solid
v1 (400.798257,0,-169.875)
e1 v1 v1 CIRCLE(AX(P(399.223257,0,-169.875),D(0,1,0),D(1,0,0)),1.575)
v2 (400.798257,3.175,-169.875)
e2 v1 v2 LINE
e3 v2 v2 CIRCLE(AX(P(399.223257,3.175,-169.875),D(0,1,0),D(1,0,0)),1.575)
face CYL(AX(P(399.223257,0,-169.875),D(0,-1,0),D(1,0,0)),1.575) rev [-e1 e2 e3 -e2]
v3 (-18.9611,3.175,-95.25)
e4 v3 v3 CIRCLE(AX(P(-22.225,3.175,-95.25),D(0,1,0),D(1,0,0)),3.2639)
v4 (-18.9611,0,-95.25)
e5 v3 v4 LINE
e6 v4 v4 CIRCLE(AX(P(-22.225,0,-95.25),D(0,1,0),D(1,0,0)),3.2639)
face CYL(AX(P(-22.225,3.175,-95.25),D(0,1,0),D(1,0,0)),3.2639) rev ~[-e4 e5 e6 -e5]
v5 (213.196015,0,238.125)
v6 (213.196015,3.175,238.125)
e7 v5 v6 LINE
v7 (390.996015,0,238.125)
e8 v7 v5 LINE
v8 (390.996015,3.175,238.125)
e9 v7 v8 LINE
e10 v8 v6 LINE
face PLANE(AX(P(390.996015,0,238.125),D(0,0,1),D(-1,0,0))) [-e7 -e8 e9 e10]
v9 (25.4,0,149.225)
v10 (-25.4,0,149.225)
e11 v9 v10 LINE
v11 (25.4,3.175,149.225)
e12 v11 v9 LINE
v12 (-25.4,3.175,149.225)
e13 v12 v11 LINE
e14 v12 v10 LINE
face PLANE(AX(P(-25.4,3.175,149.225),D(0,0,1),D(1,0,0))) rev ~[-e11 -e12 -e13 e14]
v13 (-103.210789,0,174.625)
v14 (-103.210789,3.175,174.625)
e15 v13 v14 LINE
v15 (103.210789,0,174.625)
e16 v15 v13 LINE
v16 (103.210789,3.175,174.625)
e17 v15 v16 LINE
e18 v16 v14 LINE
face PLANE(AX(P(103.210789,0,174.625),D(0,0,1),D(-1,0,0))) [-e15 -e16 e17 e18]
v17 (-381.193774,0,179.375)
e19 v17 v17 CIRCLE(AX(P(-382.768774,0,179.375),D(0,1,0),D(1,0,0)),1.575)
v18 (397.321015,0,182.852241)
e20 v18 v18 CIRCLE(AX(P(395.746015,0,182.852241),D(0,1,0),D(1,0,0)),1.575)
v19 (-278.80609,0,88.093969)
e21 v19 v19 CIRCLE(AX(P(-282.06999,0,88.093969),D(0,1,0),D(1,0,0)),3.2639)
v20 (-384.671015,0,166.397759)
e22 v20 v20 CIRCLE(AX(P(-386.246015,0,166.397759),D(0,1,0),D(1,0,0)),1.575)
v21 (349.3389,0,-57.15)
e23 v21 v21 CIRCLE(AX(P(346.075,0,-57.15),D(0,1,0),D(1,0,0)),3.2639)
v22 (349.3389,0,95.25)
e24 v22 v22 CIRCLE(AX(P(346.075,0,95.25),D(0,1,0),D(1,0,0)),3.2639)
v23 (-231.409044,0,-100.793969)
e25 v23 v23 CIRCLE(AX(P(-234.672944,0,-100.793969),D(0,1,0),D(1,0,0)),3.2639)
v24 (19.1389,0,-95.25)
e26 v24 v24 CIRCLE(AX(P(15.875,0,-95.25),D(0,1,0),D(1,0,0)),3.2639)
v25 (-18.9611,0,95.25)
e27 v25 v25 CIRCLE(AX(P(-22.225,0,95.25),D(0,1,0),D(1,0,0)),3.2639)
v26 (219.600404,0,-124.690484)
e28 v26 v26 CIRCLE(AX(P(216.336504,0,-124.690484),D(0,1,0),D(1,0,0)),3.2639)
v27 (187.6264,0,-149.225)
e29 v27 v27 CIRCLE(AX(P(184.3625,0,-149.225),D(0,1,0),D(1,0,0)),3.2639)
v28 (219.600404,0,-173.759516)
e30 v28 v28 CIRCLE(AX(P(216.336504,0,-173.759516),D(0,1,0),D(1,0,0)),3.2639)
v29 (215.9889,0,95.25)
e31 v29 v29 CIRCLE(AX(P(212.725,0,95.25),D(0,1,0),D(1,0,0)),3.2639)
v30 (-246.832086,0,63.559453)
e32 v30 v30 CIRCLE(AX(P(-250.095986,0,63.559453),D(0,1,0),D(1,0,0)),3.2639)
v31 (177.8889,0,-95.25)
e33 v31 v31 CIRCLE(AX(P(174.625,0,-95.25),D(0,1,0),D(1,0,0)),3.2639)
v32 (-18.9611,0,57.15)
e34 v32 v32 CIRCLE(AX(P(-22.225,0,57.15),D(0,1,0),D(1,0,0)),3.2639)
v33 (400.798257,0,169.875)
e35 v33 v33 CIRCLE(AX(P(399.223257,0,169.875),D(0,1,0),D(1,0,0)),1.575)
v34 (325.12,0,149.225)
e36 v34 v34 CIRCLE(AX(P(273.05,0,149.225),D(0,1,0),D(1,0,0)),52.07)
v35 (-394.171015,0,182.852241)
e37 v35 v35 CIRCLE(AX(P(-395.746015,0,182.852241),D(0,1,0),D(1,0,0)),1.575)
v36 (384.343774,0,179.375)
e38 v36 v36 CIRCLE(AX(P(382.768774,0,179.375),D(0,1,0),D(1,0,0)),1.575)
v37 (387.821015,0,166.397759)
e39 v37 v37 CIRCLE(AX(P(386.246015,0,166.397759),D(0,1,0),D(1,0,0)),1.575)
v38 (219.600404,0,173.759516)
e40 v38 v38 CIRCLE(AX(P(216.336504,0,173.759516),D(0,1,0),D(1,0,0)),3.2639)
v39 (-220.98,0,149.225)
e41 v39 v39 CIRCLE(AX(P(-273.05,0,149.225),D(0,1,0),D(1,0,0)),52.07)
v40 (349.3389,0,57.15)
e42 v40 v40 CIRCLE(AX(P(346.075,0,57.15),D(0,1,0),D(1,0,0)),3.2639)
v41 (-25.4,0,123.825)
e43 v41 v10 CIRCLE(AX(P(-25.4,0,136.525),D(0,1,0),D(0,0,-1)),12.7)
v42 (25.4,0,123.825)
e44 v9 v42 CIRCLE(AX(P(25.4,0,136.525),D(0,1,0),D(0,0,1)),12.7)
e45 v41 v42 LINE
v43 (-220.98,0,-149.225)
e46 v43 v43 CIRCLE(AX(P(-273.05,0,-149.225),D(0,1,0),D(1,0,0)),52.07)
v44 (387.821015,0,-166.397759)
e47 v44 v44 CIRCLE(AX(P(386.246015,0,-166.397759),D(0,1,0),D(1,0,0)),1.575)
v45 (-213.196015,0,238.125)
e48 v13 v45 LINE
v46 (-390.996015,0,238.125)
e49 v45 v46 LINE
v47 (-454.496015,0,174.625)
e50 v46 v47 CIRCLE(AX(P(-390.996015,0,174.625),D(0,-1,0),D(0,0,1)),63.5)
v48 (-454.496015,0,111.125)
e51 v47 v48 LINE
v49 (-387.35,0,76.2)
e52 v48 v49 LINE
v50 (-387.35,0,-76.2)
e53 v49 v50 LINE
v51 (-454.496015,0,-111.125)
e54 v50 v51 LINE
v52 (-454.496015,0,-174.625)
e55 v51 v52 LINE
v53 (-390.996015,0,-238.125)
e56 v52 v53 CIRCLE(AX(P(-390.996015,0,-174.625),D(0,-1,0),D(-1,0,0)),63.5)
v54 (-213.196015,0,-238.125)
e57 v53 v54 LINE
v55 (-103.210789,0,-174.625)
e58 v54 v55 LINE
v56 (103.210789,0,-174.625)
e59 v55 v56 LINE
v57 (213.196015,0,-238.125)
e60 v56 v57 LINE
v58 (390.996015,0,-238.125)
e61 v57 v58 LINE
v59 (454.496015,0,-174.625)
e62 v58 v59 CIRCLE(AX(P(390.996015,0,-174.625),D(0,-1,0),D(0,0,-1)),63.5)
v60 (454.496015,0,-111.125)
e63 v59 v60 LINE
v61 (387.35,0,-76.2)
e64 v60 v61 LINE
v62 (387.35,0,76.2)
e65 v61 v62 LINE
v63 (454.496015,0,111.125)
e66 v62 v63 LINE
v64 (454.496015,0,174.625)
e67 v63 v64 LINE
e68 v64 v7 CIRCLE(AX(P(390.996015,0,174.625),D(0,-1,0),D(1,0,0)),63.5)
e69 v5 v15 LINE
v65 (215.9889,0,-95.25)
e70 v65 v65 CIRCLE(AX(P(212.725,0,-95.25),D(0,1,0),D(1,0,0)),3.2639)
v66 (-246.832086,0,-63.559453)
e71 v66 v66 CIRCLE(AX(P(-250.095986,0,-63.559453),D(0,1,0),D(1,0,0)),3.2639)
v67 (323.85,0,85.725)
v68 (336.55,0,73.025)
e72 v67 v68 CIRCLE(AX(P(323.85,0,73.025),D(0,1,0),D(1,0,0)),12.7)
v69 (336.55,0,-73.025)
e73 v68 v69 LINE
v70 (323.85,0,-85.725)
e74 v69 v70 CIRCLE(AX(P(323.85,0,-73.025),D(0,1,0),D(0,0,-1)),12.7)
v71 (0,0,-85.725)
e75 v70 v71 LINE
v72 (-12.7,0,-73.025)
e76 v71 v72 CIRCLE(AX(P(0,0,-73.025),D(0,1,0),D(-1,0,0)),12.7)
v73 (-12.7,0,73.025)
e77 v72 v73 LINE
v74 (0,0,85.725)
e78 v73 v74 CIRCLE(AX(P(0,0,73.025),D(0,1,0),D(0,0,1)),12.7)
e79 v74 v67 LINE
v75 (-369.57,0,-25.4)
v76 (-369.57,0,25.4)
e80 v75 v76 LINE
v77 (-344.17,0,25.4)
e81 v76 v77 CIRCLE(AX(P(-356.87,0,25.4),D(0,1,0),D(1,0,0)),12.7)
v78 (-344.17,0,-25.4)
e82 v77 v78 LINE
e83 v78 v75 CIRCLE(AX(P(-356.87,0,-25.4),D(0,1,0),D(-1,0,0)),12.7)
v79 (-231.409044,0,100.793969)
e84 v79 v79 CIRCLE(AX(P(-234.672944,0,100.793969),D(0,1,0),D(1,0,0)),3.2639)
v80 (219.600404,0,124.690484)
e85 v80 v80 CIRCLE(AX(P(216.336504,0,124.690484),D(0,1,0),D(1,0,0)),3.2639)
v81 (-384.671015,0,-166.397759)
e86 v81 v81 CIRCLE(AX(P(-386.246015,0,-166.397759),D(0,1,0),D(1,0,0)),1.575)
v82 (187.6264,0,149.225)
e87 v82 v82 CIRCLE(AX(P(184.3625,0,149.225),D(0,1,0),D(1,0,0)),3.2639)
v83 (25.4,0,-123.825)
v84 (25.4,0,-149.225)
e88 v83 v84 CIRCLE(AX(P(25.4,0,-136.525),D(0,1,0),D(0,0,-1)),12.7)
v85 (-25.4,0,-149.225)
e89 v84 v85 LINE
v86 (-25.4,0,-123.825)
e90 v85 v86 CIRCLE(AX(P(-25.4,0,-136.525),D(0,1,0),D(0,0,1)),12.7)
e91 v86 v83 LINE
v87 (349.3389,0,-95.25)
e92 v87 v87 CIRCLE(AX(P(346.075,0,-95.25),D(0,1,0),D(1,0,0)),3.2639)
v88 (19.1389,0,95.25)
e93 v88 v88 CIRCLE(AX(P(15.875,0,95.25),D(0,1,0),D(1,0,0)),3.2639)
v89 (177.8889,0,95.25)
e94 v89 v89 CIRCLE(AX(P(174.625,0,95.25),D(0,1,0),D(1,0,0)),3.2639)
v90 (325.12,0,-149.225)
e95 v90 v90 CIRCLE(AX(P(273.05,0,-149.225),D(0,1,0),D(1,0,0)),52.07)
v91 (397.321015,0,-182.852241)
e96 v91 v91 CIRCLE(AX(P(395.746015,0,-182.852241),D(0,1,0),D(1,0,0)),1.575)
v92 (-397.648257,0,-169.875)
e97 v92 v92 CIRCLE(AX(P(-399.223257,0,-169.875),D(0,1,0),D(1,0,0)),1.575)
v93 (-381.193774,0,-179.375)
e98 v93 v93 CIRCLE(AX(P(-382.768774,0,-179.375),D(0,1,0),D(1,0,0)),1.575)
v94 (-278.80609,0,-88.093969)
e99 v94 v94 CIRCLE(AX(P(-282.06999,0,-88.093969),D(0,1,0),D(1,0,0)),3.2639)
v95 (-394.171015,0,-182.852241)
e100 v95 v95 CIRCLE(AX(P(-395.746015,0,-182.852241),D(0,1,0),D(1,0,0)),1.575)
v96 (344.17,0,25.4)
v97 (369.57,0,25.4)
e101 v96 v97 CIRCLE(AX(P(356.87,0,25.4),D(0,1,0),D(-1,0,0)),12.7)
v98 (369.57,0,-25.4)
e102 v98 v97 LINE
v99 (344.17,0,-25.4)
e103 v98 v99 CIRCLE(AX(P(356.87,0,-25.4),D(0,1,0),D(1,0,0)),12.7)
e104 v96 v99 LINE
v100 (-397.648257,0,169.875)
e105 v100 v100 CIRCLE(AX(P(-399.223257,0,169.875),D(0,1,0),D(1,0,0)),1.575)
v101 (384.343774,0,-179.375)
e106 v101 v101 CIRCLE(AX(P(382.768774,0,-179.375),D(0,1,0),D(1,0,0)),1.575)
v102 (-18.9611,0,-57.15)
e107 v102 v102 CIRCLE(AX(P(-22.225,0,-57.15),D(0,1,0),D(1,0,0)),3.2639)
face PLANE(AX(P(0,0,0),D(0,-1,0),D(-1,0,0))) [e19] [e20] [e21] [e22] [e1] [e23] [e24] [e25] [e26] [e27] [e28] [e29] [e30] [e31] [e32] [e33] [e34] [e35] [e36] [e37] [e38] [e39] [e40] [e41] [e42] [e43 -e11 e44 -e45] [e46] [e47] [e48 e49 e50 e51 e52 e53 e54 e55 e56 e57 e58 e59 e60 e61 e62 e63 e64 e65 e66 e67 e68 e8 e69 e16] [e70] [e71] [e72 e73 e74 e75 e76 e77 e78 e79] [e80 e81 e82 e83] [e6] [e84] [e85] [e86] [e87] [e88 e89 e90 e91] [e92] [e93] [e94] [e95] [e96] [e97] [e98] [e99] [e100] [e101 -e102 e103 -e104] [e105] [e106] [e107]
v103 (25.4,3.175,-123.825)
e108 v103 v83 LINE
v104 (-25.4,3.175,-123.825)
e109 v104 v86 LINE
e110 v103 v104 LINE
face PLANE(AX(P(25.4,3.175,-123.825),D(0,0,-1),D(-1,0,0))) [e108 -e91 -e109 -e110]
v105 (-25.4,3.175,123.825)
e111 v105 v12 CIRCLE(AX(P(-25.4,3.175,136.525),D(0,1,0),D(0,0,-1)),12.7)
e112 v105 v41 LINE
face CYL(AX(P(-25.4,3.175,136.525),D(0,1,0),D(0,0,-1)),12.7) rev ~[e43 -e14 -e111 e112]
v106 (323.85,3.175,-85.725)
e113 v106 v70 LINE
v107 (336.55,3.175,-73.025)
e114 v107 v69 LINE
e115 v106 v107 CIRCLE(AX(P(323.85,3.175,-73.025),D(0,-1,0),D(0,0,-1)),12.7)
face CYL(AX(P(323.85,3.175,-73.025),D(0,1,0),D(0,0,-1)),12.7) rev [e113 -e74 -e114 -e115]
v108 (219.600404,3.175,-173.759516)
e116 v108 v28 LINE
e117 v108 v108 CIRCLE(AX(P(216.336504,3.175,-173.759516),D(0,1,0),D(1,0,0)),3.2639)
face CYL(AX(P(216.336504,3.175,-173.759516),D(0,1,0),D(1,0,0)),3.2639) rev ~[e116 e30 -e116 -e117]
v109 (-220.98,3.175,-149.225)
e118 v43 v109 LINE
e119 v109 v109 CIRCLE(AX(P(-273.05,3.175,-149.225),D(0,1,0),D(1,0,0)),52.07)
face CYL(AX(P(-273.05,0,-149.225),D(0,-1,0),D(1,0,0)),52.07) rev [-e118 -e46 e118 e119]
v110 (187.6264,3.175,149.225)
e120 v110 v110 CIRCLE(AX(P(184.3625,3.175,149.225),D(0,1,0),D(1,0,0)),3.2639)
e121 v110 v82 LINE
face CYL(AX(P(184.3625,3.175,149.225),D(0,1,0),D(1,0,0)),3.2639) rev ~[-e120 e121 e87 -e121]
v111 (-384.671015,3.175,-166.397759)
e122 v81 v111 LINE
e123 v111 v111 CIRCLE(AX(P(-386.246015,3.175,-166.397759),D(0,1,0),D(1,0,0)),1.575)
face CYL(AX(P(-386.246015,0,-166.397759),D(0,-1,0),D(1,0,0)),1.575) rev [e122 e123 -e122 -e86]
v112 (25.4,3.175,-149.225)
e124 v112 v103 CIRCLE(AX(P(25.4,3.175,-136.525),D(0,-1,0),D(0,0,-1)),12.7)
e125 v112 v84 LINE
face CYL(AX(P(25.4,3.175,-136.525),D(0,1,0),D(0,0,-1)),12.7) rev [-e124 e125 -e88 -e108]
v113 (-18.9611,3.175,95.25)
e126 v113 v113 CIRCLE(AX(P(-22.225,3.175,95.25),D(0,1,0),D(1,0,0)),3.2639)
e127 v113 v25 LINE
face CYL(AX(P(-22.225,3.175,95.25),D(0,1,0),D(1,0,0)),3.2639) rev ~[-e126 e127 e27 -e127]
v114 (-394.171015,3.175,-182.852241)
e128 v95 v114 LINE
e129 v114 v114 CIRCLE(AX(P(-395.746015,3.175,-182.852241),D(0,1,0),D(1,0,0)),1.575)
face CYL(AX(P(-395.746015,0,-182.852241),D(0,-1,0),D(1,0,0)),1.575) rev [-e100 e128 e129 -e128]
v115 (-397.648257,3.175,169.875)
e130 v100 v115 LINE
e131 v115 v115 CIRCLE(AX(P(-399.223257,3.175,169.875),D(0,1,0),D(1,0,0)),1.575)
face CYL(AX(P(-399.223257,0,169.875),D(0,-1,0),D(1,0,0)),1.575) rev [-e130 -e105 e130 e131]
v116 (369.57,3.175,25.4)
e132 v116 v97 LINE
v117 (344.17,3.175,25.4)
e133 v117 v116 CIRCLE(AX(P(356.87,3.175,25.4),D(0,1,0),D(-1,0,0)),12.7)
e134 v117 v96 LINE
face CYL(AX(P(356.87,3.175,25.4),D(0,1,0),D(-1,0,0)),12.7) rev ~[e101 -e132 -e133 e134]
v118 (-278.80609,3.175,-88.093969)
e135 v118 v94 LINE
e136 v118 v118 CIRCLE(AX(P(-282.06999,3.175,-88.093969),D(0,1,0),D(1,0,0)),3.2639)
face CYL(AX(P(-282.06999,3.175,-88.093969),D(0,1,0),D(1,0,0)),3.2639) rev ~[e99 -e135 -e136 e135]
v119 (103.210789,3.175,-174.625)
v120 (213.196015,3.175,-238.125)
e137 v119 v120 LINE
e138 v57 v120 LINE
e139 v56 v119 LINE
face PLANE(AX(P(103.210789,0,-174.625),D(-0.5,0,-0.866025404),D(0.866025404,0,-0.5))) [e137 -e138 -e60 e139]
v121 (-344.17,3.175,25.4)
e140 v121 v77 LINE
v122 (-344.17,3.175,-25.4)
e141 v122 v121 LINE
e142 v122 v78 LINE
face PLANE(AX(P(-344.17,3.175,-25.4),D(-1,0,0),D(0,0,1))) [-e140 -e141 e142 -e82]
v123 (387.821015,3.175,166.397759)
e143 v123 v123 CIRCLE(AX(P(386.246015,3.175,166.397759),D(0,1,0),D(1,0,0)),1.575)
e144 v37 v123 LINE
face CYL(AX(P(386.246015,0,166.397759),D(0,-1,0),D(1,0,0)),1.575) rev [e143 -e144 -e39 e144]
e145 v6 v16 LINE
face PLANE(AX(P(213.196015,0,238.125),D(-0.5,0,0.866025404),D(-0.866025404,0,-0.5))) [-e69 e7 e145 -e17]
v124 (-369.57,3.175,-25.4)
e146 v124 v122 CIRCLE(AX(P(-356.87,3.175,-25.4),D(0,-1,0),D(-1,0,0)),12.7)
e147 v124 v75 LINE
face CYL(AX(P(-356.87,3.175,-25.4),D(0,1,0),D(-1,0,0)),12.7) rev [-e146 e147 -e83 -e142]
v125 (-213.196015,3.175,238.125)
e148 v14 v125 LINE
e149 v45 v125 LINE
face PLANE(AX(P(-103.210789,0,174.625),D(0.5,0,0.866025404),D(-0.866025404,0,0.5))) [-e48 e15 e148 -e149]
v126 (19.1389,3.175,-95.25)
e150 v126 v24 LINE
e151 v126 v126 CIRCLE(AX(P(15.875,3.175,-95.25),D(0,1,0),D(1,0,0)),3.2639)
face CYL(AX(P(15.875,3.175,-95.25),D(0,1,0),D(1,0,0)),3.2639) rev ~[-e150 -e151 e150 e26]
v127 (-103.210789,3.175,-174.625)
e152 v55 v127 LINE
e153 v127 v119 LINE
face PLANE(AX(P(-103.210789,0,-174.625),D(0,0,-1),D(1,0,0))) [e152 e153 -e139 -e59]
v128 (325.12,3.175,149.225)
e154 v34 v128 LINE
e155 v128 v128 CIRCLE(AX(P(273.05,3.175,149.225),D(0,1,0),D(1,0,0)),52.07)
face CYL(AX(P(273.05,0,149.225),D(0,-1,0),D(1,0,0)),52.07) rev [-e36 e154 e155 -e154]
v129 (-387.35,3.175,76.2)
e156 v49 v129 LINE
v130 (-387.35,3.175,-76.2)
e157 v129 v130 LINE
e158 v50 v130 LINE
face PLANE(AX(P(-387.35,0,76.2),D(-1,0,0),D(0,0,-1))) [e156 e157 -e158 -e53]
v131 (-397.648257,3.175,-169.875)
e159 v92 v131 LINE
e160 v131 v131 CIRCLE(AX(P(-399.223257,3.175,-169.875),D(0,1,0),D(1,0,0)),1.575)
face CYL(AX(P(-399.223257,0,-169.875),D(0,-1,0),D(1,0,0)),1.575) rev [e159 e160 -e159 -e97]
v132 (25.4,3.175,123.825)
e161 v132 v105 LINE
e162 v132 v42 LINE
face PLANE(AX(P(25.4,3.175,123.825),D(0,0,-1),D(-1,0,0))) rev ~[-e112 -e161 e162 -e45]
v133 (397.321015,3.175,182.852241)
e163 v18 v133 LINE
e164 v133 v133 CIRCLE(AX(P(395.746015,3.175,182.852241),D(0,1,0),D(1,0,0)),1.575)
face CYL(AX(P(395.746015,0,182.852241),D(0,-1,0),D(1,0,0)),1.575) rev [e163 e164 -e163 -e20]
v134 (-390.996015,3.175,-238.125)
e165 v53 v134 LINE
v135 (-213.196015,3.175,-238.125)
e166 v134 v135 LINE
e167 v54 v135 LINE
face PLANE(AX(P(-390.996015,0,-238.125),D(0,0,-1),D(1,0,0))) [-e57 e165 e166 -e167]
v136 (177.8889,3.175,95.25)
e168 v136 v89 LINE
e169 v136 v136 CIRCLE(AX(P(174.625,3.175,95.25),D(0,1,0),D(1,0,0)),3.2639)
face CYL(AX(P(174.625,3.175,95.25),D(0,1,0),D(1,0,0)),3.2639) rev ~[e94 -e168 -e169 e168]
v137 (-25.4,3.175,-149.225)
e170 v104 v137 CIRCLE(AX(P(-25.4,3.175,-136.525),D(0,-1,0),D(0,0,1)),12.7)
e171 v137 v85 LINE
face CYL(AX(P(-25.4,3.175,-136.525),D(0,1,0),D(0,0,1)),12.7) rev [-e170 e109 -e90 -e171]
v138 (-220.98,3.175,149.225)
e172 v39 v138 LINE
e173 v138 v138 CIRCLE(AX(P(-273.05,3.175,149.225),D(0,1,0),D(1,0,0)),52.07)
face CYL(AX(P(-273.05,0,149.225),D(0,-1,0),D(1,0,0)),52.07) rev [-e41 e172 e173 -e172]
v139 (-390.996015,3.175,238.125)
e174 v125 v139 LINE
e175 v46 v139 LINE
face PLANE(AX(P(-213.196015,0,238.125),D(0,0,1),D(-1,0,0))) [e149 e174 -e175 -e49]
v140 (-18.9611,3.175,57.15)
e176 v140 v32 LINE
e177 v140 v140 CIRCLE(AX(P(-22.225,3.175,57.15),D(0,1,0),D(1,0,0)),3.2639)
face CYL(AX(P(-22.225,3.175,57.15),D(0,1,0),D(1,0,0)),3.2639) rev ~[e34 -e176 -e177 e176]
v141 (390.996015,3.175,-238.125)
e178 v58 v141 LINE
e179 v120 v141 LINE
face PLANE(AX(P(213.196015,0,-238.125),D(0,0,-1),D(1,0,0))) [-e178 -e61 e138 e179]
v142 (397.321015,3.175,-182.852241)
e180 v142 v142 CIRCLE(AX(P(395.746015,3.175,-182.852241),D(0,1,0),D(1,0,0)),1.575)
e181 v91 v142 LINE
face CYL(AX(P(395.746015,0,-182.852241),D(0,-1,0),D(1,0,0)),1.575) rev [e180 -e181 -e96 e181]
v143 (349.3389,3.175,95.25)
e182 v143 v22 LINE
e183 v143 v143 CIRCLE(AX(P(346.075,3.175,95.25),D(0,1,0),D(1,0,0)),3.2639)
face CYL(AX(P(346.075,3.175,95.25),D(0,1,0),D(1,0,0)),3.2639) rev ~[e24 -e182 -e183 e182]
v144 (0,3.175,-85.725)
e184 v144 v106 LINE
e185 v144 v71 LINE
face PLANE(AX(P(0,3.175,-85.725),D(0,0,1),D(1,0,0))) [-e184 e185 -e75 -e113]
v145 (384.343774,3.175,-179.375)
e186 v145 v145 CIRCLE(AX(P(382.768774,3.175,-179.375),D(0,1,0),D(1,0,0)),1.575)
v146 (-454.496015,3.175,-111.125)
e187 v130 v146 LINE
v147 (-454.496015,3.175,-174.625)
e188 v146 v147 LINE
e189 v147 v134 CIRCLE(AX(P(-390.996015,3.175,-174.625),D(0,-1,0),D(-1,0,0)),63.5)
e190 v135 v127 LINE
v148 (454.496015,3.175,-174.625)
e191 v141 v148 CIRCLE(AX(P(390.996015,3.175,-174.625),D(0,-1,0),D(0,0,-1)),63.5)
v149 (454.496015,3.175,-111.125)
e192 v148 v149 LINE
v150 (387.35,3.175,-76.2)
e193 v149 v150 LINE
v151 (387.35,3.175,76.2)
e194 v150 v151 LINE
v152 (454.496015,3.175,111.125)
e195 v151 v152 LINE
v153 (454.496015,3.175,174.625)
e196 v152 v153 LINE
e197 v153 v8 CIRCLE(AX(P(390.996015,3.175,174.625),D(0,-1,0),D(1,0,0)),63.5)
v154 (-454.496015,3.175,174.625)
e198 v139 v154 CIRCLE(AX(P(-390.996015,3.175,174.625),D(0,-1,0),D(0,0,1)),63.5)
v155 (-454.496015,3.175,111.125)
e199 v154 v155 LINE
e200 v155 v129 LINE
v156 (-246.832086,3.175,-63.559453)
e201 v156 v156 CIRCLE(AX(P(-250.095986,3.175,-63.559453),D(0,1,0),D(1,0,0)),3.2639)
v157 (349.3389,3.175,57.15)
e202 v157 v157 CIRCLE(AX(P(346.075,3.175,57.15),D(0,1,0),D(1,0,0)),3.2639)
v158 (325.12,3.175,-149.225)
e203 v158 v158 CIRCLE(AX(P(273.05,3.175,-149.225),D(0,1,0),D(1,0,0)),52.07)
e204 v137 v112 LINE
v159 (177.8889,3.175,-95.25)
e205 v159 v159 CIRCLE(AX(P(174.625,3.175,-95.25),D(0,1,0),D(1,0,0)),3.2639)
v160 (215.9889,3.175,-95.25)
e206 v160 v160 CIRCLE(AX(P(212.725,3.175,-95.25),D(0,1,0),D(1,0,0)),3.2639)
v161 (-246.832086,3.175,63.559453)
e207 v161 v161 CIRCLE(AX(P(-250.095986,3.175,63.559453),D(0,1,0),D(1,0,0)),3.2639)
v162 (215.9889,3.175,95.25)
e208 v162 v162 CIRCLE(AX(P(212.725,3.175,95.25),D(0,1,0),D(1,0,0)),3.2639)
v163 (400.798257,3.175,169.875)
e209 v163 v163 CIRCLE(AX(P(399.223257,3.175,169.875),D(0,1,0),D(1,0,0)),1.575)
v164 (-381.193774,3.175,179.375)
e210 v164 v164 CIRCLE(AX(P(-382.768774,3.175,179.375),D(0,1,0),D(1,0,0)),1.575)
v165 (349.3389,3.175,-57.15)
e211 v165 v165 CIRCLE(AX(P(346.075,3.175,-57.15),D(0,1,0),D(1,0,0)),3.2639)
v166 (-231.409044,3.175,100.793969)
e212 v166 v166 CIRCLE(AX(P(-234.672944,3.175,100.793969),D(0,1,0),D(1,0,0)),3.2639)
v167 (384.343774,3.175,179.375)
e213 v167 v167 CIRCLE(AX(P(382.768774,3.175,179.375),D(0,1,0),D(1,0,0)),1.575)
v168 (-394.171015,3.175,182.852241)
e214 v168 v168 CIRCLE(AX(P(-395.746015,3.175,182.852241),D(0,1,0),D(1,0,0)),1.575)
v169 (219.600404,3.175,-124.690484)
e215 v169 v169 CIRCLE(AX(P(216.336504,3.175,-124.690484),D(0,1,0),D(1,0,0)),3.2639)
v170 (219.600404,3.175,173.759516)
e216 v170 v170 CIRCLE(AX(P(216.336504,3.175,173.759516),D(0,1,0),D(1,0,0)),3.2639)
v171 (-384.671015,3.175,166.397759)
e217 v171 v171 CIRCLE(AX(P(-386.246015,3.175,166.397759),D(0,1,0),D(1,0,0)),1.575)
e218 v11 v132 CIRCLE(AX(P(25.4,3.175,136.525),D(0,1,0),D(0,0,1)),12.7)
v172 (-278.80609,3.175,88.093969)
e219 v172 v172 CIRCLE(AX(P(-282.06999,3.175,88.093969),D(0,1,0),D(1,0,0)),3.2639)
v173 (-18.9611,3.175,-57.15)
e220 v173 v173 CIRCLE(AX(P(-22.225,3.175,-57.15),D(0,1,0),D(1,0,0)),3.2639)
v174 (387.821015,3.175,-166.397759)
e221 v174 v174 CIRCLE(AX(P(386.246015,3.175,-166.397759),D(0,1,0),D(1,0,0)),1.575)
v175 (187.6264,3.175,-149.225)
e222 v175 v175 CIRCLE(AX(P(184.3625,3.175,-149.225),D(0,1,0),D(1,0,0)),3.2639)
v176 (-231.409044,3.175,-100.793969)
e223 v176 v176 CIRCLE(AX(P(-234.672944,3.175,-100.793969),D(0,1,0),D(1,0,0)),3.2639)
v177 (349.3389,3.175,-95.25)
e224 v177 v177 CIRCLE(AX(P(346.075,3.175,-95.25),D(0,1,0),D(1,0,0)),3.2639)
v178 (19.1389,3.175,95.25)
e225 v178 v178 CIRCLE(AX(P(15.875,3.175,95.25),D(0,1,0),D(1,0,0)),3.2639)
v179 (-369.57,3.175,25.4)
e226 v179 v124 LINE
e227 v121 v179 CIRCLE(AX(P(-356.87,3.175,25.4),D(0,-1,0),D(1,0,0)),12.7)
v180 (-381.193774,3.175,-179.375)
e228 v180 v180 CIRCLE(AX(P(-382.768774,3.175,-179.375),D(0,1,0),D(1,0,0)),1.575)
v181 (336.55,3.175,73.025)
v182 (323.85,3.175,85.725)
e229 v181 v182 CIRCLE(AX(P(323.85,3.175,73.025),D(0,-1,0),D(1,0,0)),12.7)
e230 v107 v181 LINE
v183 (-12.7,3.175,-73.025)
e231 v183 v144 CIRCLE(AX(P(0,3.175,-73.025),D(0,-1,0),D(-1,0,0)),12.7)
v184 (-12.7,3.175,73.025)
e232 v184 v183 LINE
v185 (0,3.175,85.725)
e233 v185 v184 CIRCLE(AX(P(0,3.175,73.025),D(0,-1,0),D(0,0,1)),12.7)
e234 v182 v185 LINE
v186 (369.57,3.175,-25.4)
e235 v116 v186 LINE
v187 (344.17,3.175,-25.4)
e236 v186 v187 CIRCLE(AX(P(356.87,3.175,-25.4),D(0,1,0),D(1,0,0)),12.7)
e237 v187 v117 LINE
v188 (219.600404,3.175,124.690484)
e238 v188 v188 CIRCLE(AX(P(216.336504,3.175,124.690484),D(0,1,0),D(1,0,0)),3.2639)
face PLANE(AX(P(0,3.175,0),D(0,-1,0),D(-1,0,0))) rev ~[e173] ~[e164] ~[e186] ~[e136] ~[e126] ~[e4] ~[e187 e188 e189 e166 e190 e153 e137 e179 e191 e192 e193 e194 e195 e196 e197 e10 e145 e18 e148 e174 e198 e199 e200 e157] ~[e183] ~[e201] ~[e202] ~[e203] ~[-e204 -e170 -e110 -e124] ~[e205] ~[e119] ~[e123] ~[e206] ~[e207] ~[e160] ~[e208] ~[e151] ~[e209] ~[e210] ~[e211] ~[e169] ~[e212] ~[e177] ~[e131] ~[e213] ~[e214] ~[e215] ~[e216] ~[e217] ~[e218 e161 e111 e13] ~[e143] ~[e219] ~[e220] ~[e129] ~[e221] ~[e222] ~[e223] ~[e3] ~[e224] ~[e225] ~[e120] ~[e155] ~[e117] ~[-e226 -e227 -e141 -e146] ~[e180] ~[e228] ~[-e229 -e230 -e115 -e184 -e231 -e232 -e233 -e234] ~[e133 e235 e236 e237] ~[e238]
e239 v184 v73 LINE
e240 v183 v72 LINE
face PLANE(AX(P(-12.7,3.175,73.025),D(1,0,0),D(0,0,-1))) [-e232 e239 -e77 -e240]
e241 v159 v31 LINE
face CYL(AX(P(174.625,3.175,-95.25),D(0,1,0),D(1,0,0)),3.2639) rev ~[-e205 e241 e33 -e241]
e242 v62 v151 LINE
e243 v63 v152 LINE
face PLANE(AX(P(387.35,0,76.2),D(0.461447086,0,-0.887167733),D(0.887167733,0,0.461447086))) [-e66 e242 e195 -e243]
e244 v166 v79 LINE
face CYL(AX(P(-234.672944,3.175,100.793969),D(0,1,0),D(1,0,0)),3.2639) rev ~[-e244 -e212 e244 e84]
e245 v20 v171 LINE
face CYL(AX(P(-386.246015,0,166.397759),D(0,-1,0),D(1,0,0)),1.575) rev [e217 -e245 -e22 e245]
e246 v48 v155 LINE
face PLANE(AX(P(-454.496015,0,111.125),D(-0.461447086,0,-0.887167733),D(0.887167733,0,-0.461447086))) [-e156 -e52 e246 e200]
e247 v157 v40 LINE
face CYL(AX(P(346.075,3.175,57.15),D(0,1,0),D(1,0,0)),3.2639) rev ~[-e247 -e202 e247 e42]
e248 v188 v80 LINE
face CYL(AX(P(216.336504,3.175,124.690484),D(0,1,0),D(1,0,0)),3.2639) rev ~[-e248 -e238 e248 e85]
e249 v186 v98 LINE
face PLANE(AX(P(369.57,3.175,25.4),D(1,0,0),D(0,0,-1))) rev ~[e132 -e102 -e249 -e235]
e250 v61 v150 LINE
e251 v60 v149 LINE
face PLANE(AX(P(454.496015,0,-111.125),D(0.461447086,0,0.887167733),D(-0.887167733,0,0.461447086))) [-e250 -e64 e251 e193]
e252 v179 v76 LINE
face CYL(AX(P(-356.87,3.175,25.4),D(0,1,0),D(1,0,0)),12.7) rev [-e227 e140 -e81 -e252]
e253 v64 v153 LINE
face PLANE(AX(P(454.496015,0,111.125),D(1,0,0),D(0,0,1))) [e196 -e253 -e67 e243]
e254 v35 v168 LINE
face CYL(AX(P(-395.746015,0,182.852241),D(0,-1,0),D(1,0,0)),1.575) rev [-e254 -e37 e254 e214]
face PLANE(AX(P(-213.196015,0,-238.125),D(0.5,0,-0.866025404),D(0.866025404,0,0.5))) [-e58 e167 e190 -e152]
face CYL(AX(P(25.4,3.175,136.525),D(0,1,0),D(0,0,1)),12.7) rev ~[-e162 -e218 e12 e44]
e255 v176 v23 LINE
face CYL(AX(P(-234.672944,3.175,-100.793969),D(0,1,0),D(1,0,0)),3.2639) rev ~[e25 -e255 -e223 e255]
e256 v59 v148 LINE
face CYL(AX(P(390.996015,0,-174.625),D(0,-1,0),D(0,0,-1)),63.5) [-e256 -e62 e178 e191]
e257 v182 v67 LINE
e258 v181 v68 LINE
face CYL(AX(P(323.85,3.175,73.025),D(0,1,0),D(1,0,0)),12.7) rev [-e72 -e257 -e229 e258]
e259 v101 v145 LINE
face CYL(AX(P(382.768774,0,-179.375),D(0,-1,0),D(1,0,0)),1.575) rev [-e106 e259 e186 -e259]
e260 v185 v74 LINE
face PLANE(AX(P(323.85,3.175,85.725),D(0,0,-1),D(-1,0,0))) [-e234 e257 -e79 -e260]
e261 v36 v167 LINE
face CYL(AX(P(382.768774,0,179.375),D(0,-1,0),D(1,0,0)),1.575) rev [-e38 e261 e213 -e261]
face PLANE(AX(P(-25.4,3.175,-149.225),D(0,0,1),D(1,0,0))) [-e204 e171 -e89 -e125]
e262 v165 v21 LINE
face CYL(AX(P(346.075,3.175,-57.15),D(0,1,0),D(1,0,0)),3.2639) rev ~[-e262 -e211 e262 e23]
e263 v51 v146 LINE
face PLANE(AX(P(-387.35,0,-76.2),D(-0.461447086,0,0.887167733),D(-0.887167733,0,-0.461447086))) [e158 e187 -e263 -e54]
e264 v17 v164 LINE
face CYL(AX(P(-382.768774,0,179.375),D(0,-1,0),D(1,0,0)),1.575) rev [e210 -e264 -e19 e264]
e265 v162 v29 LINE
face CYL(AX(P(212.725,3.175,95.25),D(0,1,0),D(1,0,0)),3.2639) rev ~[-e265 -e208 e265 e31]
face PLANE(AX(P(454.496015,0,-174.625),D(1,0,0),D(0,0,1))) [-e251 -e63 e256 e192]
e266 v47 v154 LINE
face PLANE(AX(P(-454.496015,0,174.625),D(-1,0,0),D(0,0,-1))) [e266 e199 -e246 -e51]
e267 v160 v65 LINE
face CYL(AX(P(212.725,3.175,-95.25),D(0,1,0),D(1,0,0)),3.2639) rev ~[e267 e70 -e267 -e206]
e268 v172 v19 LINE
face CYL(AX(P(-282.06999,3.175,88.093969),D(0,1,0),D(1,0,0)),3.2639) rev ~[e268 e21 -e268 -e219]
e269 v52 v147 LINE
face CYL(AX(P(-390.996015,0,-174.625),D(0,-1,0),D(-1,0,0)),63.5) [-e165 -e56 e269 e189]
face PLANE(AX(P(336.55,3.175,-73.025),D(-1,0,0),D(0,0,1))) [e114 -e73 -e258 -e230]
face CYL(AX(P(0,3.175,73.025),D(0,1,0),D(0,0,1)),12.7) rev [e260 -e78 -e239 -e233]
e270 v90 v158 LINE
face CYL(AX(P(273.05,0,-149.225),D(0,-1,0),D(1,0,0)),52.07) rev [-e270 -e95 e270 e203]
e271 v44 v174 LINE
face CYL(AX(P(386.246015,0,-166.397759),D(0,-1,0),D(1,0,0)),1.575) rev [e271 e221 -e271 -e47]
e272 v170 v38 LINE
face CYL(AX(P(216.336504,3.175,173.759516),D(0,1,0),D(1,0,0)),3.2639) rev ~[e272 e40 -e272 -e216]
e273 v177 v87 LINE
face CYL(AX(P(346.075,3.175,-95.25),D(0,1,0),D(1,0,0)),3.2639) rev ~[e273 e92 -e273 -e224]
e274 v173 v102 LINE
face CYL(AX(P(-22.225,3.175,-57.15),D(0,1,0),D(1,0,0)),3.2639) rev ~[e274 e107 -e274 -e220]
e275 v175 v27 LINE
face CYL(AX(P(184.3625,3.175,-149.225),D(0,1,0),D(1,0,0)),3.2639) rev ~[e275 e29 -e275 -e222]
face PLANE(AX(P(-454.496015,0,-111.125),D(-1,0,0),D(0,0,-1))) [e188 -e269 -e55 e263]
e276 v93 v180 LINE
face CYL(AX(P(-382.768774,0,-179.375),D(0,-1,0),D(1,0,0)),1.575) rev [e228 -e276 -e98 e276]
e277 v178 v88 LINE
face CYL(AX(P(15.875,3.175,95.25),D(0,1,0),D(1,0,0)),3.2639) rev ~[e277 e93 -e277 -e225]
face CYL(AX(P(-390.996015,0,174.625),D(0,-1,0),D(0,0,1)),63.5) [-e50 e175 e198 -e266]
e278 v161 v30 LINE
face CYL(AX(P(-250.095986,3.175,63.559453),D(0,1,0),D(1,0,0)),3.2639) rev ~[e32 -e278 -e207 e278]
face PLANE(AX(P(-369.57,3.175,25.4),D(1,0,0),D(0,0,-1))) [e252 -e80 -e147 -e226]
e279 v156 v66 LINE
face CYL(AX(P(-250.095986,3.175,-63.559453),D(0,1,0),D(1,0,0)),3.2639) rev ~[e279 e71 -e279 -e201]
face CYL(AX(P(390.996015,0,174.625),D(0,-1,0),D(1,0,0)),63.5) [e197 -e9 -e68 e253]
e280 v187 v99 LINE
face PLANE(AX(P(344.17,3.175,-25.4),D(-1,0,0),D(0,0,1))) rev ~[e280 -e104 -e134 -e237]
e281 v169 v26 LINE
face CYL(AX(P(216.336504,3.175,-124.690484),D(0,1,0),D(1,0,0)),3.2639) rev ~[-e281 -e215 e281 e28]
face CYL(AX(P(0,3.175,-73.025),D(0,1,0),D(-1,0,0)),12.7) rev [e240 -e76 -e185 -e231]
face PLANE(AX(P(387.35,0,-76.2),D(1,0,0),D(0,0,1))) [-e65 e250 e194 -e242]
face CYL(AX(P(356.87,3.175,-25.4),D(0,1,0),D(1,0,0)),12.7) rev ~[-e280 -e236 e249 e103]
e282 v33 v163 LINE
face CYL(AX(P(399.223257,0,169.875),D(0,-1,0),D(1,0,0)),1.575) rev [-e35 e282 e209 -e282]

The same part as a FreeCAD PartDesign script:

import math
import FreeCAD as App
import Part
import Sketcher

V = App.Vector
Q = App.Units.Quantity

doc = App.newDocument("Part")
body = doc.addObject("PartDesign::Body", "Body")

sketch1 = body.newObject("Sketcher::SketchObject", "Sketch")
sketch1.AttachmentSupport = (doc.getObject("XZ_Plane"), [""])
sketch1.MapMode = "FlatFace"
sketch1.addGeometry([
    Part.LineSegment(V(387.4, 76.2, 0), V(387.4, -76.2, 0)),
    Part.LineSegment(V(387.4, -76.2, 0), V(454.5, -111.1, 0)),
    Part.LineSegment(V(454.5, -111.1, 0), V(454.5, -174.6, 0)),
    Part.ArcOfCircle(Part.Circle(V(391, -174.6, 0), V(0, 0, 1), 63.5), math.radians(-90), math.radians(0)),
    Part.LineSegment(V(391, -238.1, 0), V(213.2, -238.1, 0)),
    Part.LineSegment(V(213.2, -238.1, 0), V(103.2, -174.6, 0)),
    Part.LineSegment(V(103.2, -174.6, 0), V(-103.2, -174.6, 0)),
    Part.LineSegment(V(-103.2, -174.6, 0), V(-213.2, -238.1, 0)),
    Part.LineSegment(V(-213.2, -238.1, 0), V(-391, -238.1, 0)),
    Part.ArcOfCircle(Part.Circle(V(-391, -174.6, 0), V(0, 0, 1), 63.5), math.radians(180), math.radians(270)),
    Part.LineSegment(V(-454.5, -174.6, 0), V(-454.5, -111.1, 0)),
    Part.LineSegment(V(-454.5, -111.1, 0), V(-387.4, -76.2, 0)),
    Part.LineSegment(V(-387.4, -76.2, 0), V(-387.4, 76.2, 0)),
    Part.LineSegment(V(-387.4, 76.2, 0), V(-454.5, 111.1, 0)),
    Part.LineSegment(V(-454.5, 111.1, 0), V(-454.5, 174.6, 0)),
    Part.ArcOfCircle(Part.Circle(V(-391, 174.6, 0), V(0, 0, 1), 63.5), math.radians(90), math.radians(180)),
    Part.LineSegment(V(-391, 238.1, 0), V(-213.2, 238.1, 0)),
    Part.LineSegment(V(-213.2, 238.1, 0), V(-103.2, 174.6, 0)),
    Part.LineSegment(V(-103.2, 174.6, 0), V(103.2, 174.6, 0)),
    Part.LineSegment(V(103.2, 174.6, 0), V(213.2, 238.1, 0)),
    Part.LineSegment(V(213.2, 238.1, 0), V(391, 238.1, 0)),
    Part.ArcOfCircle(Part.Circle(V(391, 174.6, 0), V(0, 0, 1), 63.5), math.radians(0), math.radians(90)),
    Part.LineSegment(V(454.5, 174.6, 0), V(454.5, 111.1, 0)),
    Part.LineSegment(V(454.5, 111.1, 0), V(387.4, 76.2, 0)),
    Part.Circle(V(395.7, 182.9, 0), V(0, 0, 1), 1.6),
    Part.Circle(V(382.8, 179.4, 0), V(0, 0, 1), 1.6),
    Part.Circle(V(399.2, 169.9, 0), V(0, 0, 1), 1.6),
    Part.Circle(V(386.2, 166.4, 0), V(0, 0, 1), 1.6),
    Part.Circle(V(273.1, 149.2, 0), V(0, 0, 1), 52.1),
    Part.Circle(V(-395.7, 182.9, 0), V(0, 0, 1), 1.6),
    Part.Circle(V(-382.8, 179.4, 0), V(0, 0, 1), 1.6),
    Part.Circle(V(-399.2, 169.9, 0), V(0, 0, 1), 1.6),
    Part.Circle(V(-386.2, 166.4, 0), V(0, 0, 1), 1.6),
    Part.Circle(V(-273.1, 149.2, 0), V(0, 0, 1), 52.1),
    Part.Circle(V(273.1, -149.2, 0), V(0, 0, 1), 52.1),
    Part.Circle(V(386.2, -166.4, 0), V(0, 0, 1), 1.6),
    Part.Circle(V(399.2, -169.9, 0), V(0, 0, 1), 1.6),
    Part.Circle(V(382.8, -179.4, 0), V(0, 0, 1), 1.6),
    Part.Circle(V(395.7, -182.9, 0), V(0, 0, 1), 1.6),
    Part.Circle(V(-273.1, -149.2, 0), V(0, 0, 1), 52.1),
    Part.Circle(V(-386.2, -166.4, 0), V(0, 0, 1), 1.6),
    Part.Circle(V(-399.2, -169.9, 0), V(0, 0, 1), 1.6),
    Part.Circle(V(-382.8, -179.4, 0), V(0, 0, 1), 1.6),
    Part.Circle(V(-395.7, -182.9, 0), V(0, 0, 1), 1.6),
], False)
sketch1.addConstraint([
    Sketcher.Constraint("Coincident", 0, 2, 1, 1),
    Sketcher.Constraint("Coincident", 1, 2, 2, 1),
    Sketcher.Constraint("Tangent", 2, 2, 3, 2),
    Sketcher.Constraint("Tangent", 3, 1, 4, 1),
    Sketcher.Constraint("Coincident", 4, 2, 5, 1),
    Sketcher.Constraint("Coincident", 5, 2, 6, 1),
    Sketcher.Constraint("Coincident", 6, 2, 7, 1),
    Sketcher.Constraint("Coincident", 7, 2, 8, 1),
    Sketcher.Constraint("Tangent", 8, 2, 9, 2),
    Sketcher.Constraint("Tangent", 9, 1, 10, 1),
    Sketcher.Constraint("Coincident", 10, 2, 11, 1),
    Sketcher.Constraint("Coincident", 11, 2, 12, 1),
    Sketcher.Constraint("Coincident", 12, 2, 13, 1),
    Sketcher.Constraint("Coincident", 13, 2, 14, 1),
    Sketcher.Constraint("Tangent", 14, 2, 15, 2),
    Sketcher.Constraint("Tangent", 15, 1, 16, 1),
    Sketcher.Constraint("Coincident", 16, 2, 17, 1),
    Sketcher.Constraint("Coincident", 17, 2, 18, 1),
    Sketcher.Constraint("Coincident", 18, 2, 19, 1),
    Sketcher.Constraint("Coincident", 19, 2, 20, 1),
    Sketcher.Constraint("Tangent", 20, 2, 21, 2),
    Sketcher.Constraint("Tangent", 21, 1, 22, 1),
    Sketcher.Constraint("Coincident", 22, 2, 23, 1),
    Sketcher.Constraint("Coincident", 23, 2, 0, 1),
    Sketcher.Constraint("Vertical", 0),
    Sketcher.Constraint("Vertical", 2),
    Sketcher.Constraint("Horizontal", 4),
    Sketcher.Constraint("Horizontal", 6),
    Sketcher.Constraint("Horizontal", 8),
    Sketcher.Constraint("Vertical", 10),
    Sketcher.Constraint("Vertical", 12),
    Sketcher.Constraint("Vertical", 14),
    Sketcher.Constraint("Horizontal", 16),
    Sketcher.Constraint("Horizontal", 18),
    Sketcher.Constraint("Horizontal", 20),
    Sketcher.Constraint("Vertical", 22),
    Sketcher.Constraint("Equal", 3, 9),
    Sketcher.Constraint("Equal", 9, 15),
    Sketcher.Constraint("Equal", 15, 21),
    Sketcher.Constraint("Equal", 24, 25),
    Sketcher.Constraint("Equal", 25, 26),
    Sketcher.Constraint("Equal", 26, 27),
    Sketcher.Constraint("Equal", 27, 29),
    Sketcher.Constraint("Equal", 29, 30),
    Sketcher.Constraint("Equal", 30, 31),
    Sketcher.Constraint("Equal", 31, 32),
    Sketcher.Constraint("Equal", 28, 33),
    Sketcher.Constraint("Equal", 33, 34),
    Sketcher.Constraint("Equal", 32, 35),
    Sketcher.Constraint("Equal", 35, 36),
    Sketcher.Constraint("Equal", 36, 37),
    Sketcher.Constraint("Equal", 37, 38),
    Sketcher.Constraint("Equal", 34, 39),
    Sketcher.Constraint("Equal", 38, 40),
    Sketcher.Constraint("Equal", 40, 41),
    Sketcher.Constraint("Equal", 41, 42),
    Sketcher.Constraint("Equal", 42, 43),
    Sketcher.Constraint("Symmetric", 3, 3, 15, 3, -1, 1),
    Sketcher.Constraint("Symmetric", 9, 3, 21, 3, -1, 1),
    Sketcher.Constraint("Symmetric", 33, 3, 34, 3, -1, 1),
    Sketcher.Constraint("Symmetric", 32, 3, 35, 3, -1, 1),
    Sketcher.Constraint("Symmetric", 31, 3, 36, 3, -1, 1),
    Sketcher.Constraint("Symmetric", 30, 3, 37, 3, -1, 1),
    Sketcher.Constraint("Symmetric", 29, 3, 38, 3, -1, 1),
    Sketcher.Constraint("Symmetric", 28, 3, 39, 3, -1, 1),
    Sketcher.Constraint("Symmetric", 27, 3, 40, 3, -1, 1),
    Sketcher.Constraint("Symmetric", 26, 3, 41, 3, -1, 1),
    Sketcher.Constraint("Symmetric", 25, 3, 42, 3, -1, 1),
    Sketcher.Constraint("Symmetric", 24, 3, 43, 3, -1, 1),
    Sketcher.Constraint("Symmetric", 0, 2, 12, 2, -1, 1),
    Sketcher.Constraint("Symmetric", 5, 2, 17, 2, -1, 1),
    Sketcher.Constraint("Symmetric", 3, 3, 9, 3, -2),
    Sketcher.Constraint("Symmetric", 24, 3, 29, 3, -2),
    Sketcher.Constraint("Symmetric", 25, 3, 30, 3, -2),
    Sketcher.Constraint("Symmetric", 26, 3, 31, 3, -2),
    Sketcher.Constraint("Symmetric", 27, 3, 32, 3, -2),
    Sketcher.Constraint("Symmetric", 28, 3, 33, 3, -2),
    Sketcher.Constraint("Parallel", 1, 13),
    Sketcher.Constraint("Parallel", 5, 17),
    Sketcher.Constraint("Parallel", 7, 19),
    Sketcher.Constraint("Parallel", 11, 23),
    Sketcher.Constraint("Horizontal", 2, 2, 5, 2),
    Sketcher.Constraint("Horizontal", 1, 2, 10, 2),
    Sketcher.Constraint("Horizontal", 0, 2, 11, 2),
    Sketcher.Constraint("Horizontal", 13, 2, 22, 2),
    Sketcher.Constraint("Vertical", 7, 2, 16, 2),
    Sketcher.Constraint("Vertical", 6, 2, 17, 2),
    Sketcher.Constraint("Vertical", 5, 2, 18, 2),
    Sketcher.Constraint("Diameter", 28, Q("4.1 in")),
    Sketcher.Constraint("Radius", 3, Q("2.5 in")),
    Sketcher.Constraint("DistanceX", 4, 2, 4, 1, Q("7 in")),
    Sketcher.Constraint("DistanceY", 0, 2, 0, 1, Q("6 in")),
    Sketcher.Constraint("Distance", 5, Q("5 in")),
    Sketcher.Constraint("DistanceY", 2, 2, 2, 1, Q("2.5 in")),
    Sketcher.Constraint("DistanceY", 28, 3, 21, 3, Q("1 in")),
    Sketcher.Constraint("Diameter", 24, Q("3.15 mm")),
    Sketcher.Constraint("DistanceX", -1, 1, 28, 3, Q("10.75 in")),
    Sketcher.Constraint("DistanceX", -1, 1, 0, 2, Q("15.25 in")),
    Sketcher.Constraint("DistanceY", 9, 3, 15, 3, Q("13.75 in")),
    Sketcher.Constraint("DistanceY", -1, 1, 25, 3, Q("179.375 mm")),
    Sketcher.Constraint("DistanceY", -1, 1, 26, 3, Q("169.875 mm")),
    Sketcher.Constraint("DistanceX", 21, 3, 24, 3, Q("4.75 mm")),
    Sketcher.Constraint("DistanceX", 27, 3, 21, 3, Q("4.75 mm")),
    Sketcher.Constraint("DistanceX", 6, 2, 6, 1, Q("206.421578 mm")),
    Sketcher.Constraint("DistanceY", -1, 1, 24, 3, Q("182.852241 mm")),
    Sketcher.Constraint("DistanceY", -1, 1, 27, 3, Q("166.397759 mm")),
    Sketcher.Constraint("DistanceX", 25, 3, 21, 3, Q("8.227241 mm")),
    Sketcher.Constraint("DistanceX", 21, 3, 26, 3, Q("8.227241 mm")),
])
pad1 = body.newObject("PartDesign::Pad", "Pad")
pad1.Profile = sketch1
pad1.Length = Q("0.125 in")
pad1.Reversed = True

sketch2 = body.newObject("Sketcher::SketchObject", "Sketch001")
sketch2.AttachmentSupport = (doc.getObject("XZ_Plane"), [""])
sketch2.MapMode = "FlatFace"
sketch2.AttachmentOffset = App.Placement(V(0, 0, -0.125 * 25.4), App.Rotation())
sketch2.addGeometry([
    Part.Circle(V(346.1, -95.2, 0), V(0, 0, 1), 3.3),
    Part.Circle(V(346.1, -57.1, 0), V(0, 0, 1), 3.3),
    Part.Circle(V(212.7, -95.2, 0), V(0, 0, 1), 3.3),
    Part.Circle(V(174.6, -95.2, 0), V(0, 0, 1), 3.3),
    Part.Circle(V(15.9, -95.2, 0), V(0, 0, 1), 3.3),
    Part.Circle(V(-22.2, -95.2, 0), V(0, 0, 1), 3.3),
    Part.Circle(V(-22.2, -57.1, 0), V(0, 0, 1), 3.3),
    Part.Circle(V(346.1, 57.1, 0), V(0, 0, 1), 3.3),
    Part.Circle(V(346.1, 95.2, 0), V(0, 0, 1), 3.3),
    Part.Circle(V(212.7, 95.2, 0), V(0, 0, 1), 3.3),
    Part.Circle(V(174.6, 95.2, 0), V(0, 0, 1), 3.3),
    Part.Circle(V(15.9, 95.2, 0), V(0, 0, 1), 3.3),
    Part.Circle(V(-22.2, 95.2, 0), V(0, 0, 1), 3.3),
    Part.Circle(V(-22.2, 57.1, 0), V(0, 0, 1), 3.3),
    Part.LineSegment(V(323.9, -85.7, 0), V(0, -85.7, 0)),
    Part.ArcOfCircle(Part.Circle(V(0, -73, 0), V(0, 0, 1), 12.7), math.radians(180), math.radians(270)),
    Part.LineSegment(V(-12.7, -73, 0), V(-12.7, 73, 0)),
    Part.ArcOfCircle(Part.Circle(V(0, 73, 0), V(0, 0, 1), 12.7), math.radians(90), math.radians(180)),
    Part.LineSegment(V(0, 85.7, 0), V(323.9, 85.7, 0)),
    Part.ArcOfCircle(Part.Circle(V(323.9, 73, 0), V(0, 0, 1), 12.7), math.radians(0), math.radians(90)),
    Part.LineSegment(V(336.6, 73, 0), V(336.6, -73, 0)),
    Part.ArcOfCircle(Part.Circle(V(323.9, -73, 0), V(0, 0, 1), 12.7), math.radians(-90), math.radians(0)),
], False)
sketch2.addConstraint([
    Sketcher.Constraint("Tangent", 14, 2, 15, 2),
    Sketcher.Constraint("Tangent", 15, 1, 16, 1),
    Sketcher.Constraint("Tangent", 16, 2, 17, 2),
    Sketcher.Constraint("Tangent", 17, 1, 18, 1),
    Sketcher.Constraint("Tangent", 18, 2, 19, 2),
    Sketcher.Constraint("Tangent", 19, 1, 20, 1),
    Sketcher.Constraint("Tangent", 20, 2, 21, 2),
    Sketcher.Constraint("Tangent", 21, 1, 14, 1),
    Sketcher.Constraint("Horizontal", 14),
    Sketcher.Constraint("Vertical", 16),
    Sketcher.Constraint("Horizontal", 18),
    Sketcher.Constraint("Vertical", 20),
    Sketcher.Constraint("Equal", 0, 1),
    Sketcher.Constraint("Equal", 1, 2),
    Sketcher.Constraint("Equal", 2, 3),
    Sketcher.Constraint("Equal", 3, 4),
    Sketcher.Constraint("Equal", 4, 5),
    Sketcher.Constraint("Equal", 5, 6),
    Sketcher.Constraint("Equal", 6, 7),
    Sketcher.Constraint("Equal", 7, 8),
    Sketcher.Constraint("Equal", 8, 9),
    Sketcher.Constraint("Equal", 9, 10),
    Sketcher.Constraint("Equal", 10, 11),
    Sketcher.Constraint("Equal", 11, 12),
    Sketcher.Constraint("Equal", 12, 13),
    Sketcher.Constraint("Equal", 15, 17),
    Sketcher.Constraint("Equal", 17, 19),
    Sketcher.Constraint("Equal", 19, 21),
    Sketcher.Constraint("Symmetric", 15, 3, 17, 3, -1, 1),
    Sketcher.Constraint("Symmetric", 1, 3, 7, 3, -1),
    Sketcher.Constraint("Symmetric", 0, 3, 8, 3, -1),
    Sketcher.Constraint("Symmetric", 2, 3, 9, 3, -1),
    Sketcher.Constraint("Symmetric", 3, 3, 10, 3, -1),
    Sketcher.Constraint("Symmetric", 4, 3, 11, 3, -1),
    Sketcher.Constraint("Symmetric", 5, 3, 12, 3, -1),
    Sketcher.Constraint("Symmetric", 6, 3, 13, 3, -1),
    Sketcher.Constraint("Horizontal", 0, 3, 2, 3),
    Sketcher.Constraint("Horizontal", 2, 3, 3, 3),
    Sketcher.Constraint("Horizontal", 3, 3, 4, 3),
    Sketcher.Constraint("Horizontal", 4, 3, 5, 3),
    Sketcher.Constraint("Horizontal", 1, 3, 6, 3),
    Sketcher.Constraint("Vertical", 0, 3, 1, 3),
    Sketcher.Constraint("Vertical", 5, 3, 6, 3),
    Sketcher.Constraint("Radius", 15, Q("0.5 in")),
    Sketcher.Constraint("Diameter", 0, Q("0.257 in")),
    Sketcher.Constraint("DistanceX", 4, 3, 0, 3, Q("13 in")),
    Sketcher.Constraint("DistanceY", 0, 3, 7, 3, Q("6 in")),
    Sketcher.Constraint("DistanceX", 14, 2, 14, 1, Q("12.75 in")),
    Sketcher.Constraint("DistanceY", 16, 1, 16, 2, Q("5.75 in")),
    Sketcher.Constraint("DistanceY", 0, 3, 1, 3, Q("1.5 in")),
    Sketcher.Constraint("DistanceX", 3, 3, 2, 3, Q("1.5 in")),
    Sketcher.Constraint("DistanceX", 5, 3, 4, 3, Q("1.5 in")),
    Sketcher.Constraint("DistanceX", 2, 3, 0, 3, Q("5.25 in")),
    Sketcher.Constraint("DistanceX", -1, 1, 0, 3, Q("13.625 in")),
])
pocket1 = body.newObject("PartDesign::Pocket", "Pocket")
pocket1.Profile = sketch2
pocket1.Type = "ThroughAll"
pocket1.Reversed = True

sketch3 = body.newObject("Sketcher::SketchObject", "Sketch002")
sketch3.AttachmentSupport = (doc.getObject("XZ_Plane"), [""])
sketch3.MapMode = "FlatFace"
sketch3.AttachmentOffset = App.Placement(V(0, 0, -0.125 * 25.4), App.Rotation())
sketch3.addGeometry([
    Part.Circle(V(184.4, -149.2, 0), V(0, 0, 1), 3.3),
    Part.Circle(V(-250.1, -63.6, 0), V(0, 0, 1), 3.3),
    Part.Circle(V(184.4, 149.2, 0), V(0, 0, 1), 3.3),
    Part.Circle(V(-250.1, 63.6, 0), V(0, 0, 1), 3.3),
    Part.Circle(V(216.3, -173.8, 0), V(0, 0, 1), 3.3),
    Part.Circle(V(216.3, -124.7, 0), V(0, 0, 1), 3.3),
    Part.Circle(V(-282.1, -88.1, 0), V(0, 0, 1), 3.3),
    Part.Circle(V(-234.7, -100.8, 0), V(0, 0, 1), 3.3),
    Part.Circle(V(216.3, 124.7, 0), V(0, 0, 1), 3.3),
    Part.Circle(V(216.3, 173.8, 0), V(0, 0, 1), 3.3),
    Part.Circle(V(-234.7, 100.8, 0), V(0, 0, 1), 3.3),
    Part.Circle(V(-282.1, 88.1, 0), V(0, 0, 1), 3.3),
], False)
sketch3.addConstraint([
    Sketcher.Constraint("Equal", 0, 1),
    Sketcher.Constraint("Equal", 1, 2),
    Sketcher.Constraint("Equal", 2, 3),
    Sketcher.Constraint("Equal", 3, 4),
    Sketcher.Constraint("Equal", 4, 5),
    Sketcher.Constraint("Equal", 5, 6),
    Sketcher.Constraint("Equal", 6, 7),
    Sketcher.Constraint("Equal", 7, 8),
    Sketcher.Constraint("Equal", 8, 9),
    Sketcher.Constraint("Equal", 9, 10),
    Sketcher.Constraint("Equal", 10, 11),
    Sketcher.Constraint("Symmetric", 0, 3, 2, 3, -1),
    Sketcher.Constraint("Symmetric", 1, 3, 3, 3, -1),
    Sketcher.Constraint("Symmetric", 5, 3, 8, 3, -1),
    Sketcher.Constraint("Symmetric", 4, 3, 9, 3, -1),
    Sketcher.Constraint("Symmetric", 7, 3, 10, 3, -1),
    Sketcher.Constraint("Symmetric", 6, 3, 11, 3, -1),
    Sketcher.Constraint("Vertical", 4, 3, 5, 3),
    Sketcher.Constraint("Diameter", 0, Q("0.257 in")),
    Sketcher.Constraint("DistanceY", 7, 3, 6, 3, Q("0.5 in")),
    Sketcher.Constraint("DistanceY", 0, 3, 2, 3, Q("11.75 in")),
    Sketcher.Constraint("DistanceY", 4, 3, 8, 3, Q("11.75 in")),
    Sketcher.Constraint("DistanceX", -1, 1, 0, 3, Q("184.3625 mm")),
    Sketcher.Constraint("DistanceX", 6, 3, -1, 1, Q("282.06999 mm")),
    Sketcher.Constraint("DistanceY", 6, 3, -1, 1, Q("88.093969 mm")),
    Sketcher.Constraint("DistanceX", 1, 3, 4, 3, Q("466.43249 mm")),
    Sketcher.Constraint("DistanceY", 4, 3, 3, 3, Q("237.318969 mm")),
    Sketcher.Constraint("DistanceY", 4, 3, 5, 3, Q("49.069032 mm")),
    Sketcher.Constraint("DistanceX", 1, 3, 7, 3, Q("15.423042 mm")),
    Sketcher.Constraint("DistanceX", 1, 3, -1, 1, Q("250.095986 mm")),
])
pocket2 = body.newObject("PartDesign::Pocket", "Pocket001")
pocket2.Profile = sketch3
pocket2.Type = "ThroughAll"
pocket2.Reversed = True

sketch4 = body.newObject("Sketcher::SketchObject", "Sketch003")
sketch4.AttachmentSupport = (doc.getObject("XZ_Plane"), [""])
sketch4.MapMode = "FlatFace"
sketch4.AttachmentOffset = App.Placement(V(0, 0, -0.125 * 25.4), App.Rotation())
sketch4.addGeometry([
    Part.LineSegment(V(-344, 25, 0), V(-344, -25, 0)),
    Part.ArcOfCircle(Part.Circle(V(-357, -25, 0), V(0, 0, 1), 13), math.radians(180), math.radians(360)),
    Part.LineSegment(V(-370, -25, 0), V(-370, 25, 0)),
    Part.ArcOfCircle(Part.Circle(V(-357, 25, 0), V(0, 0, 1), 13), math.radians(0), math.radians(180)),
    Part.LineSegment(V(344, -25, 0), V(344, 25, 0)),
    Part.ArcOfCircle(Part.Circle(V(357, 25, 0), V(0, 0, 1), 13), math.radians(0), math.radians(180)),
    Part.LineSegment(V(370, 25, 0), V(370, -25, 0)),
    Part.ArcOfCircle(Part.Circle(V(357, -25, 0), V(0, 0, 1), 13), math.radians(180), math.radians(360)),
], False)
sketch4.addConstraint([
    Sketcher.Constraint("Tangent", 0, 2, 1, 2),
    Sketcher.Constraint("Tangent", 1, 1, 2, 1),
    Sketcher.Constraint("Tangent", 2, 2, 3, 2),
    Sketcher.Constraint("Tangent", 3, 1, 0, 1),
    Sketcher.Constraint("Tangent", 4, 2, 5, 2),
    Sketcher.Constraint("Tangent", 5, 1, 6, 1),
    Sketcher.Constraint("Tangent", 6, 2, 7, 2),
    Sketcher.Constraint("Tangent", 7, 1, 4, 1),
    Sketcher.Constraint("Vertical", 0),
    Sketcher.Constraint("Vertical", 2),
    Sketcher.Constraint("Vertical", 4),
    Sketcher.Constraint("Vertical", 6),
    Sketcher.Constraint("Equal", 3, 5),
    Sketcher.Constraint("Symmetric", 1, 3, 5, 3, -1, 1),
    Sketcher.Constraint("Horizontal", 3, 3, 5, 3),
    Sketcher.Constraint("Horizontal", 1, 3, 7, 3),
    Sketcher.Constraint("Radius", 1, Q("0.5 in")),
    Sketcher.Constraint("DistanceY", 0, 2, 0, 1, Q("2 in")),
    Sketcher.Constraint("DistanceX", 3, 3, 5, 3, Q("28.1 in")),
])
pocket3 = body.newObject("PartDesign::Pocket", "Pocket002")
pocket3.Profile = sketch4
pocket3.Type = "ThroughAll"
pocket3.Reversed = True

sketch5 = body.newObject("Sketcher::SketchObject", "Sketch004")
sketch5.AttachmentSupport = (doc.getObject("XZ_Plane"), [""])
sketch5.MapMode = "FlatFace"
sketch5.AttachmentOffset = App.Placement(V(0, 0, -0.125 * 25.4), App.Rotation())
sketch5.addGeometry([
    Part.LineSegment(V(25, -149, 0), V(-25, -149, 0)),
    Part.ArcOfCircle(Part.Circle(V(-25, -137, 0), V(0, 0, 1), 13), math.radians(90), math.radians(270)),
    Part.LineSegment(V(-25, -124, 0), V(25, -124, 0)),
    Part.ArcOfCircle(Part.Circle(V(25, -137, 0), V(0, 0, 1), 13), math.radians(-90), math.radians(90)),
    Part.LineSegment(V(-25, 149, 0), V(25, 149, 0)),
    Part.ArcOfCircle(Part.Circle(V(25, 137, 0), V(0, 0, 1), 13), math.radians(-90), math.radians(90)),
    Part.LineSegment(V(25, 124, 0), V(-25, 124, 0)),
    Part.ArcOfCircle(Part.Circle(V(-25, 137, 0), V(0, 0, 1), 13), math.radians(90), math.radians(270)),
], False)
sketch5.addConstraint([
    Sketcher.Constraint("Tangent", 0, 2, 1, 2),
    Sketcher.Constraint("Tangent", 1, 1, 2, 1),
    Sketcher.Constraint("Tangent", 2, 2, 3, 2),
    Sketcher.Constraint("Tangent", 3, 1, 0, 1),
    Sketcher.Constraint("Tangent", 4, 2, 5, 2),
    Sketcher.Constraint("Tangent", 5, 1, 6, 1),
    Sketcher.Constraint("Tangent", 6, 2, 7, 2),
    Sketcher.Constraint("Tangent", 7, 1, 4, 1),
    Sketcher.Constraint("Horizontal", 0),
    Sketcher.Constraint("Horizontal", 2),
    Sketcher.Constraint("Horizontal", 4),
    Sketcher.Constraint("Horizontal", 6),
    Sketcher.Constraint("Equal", 3, 5),
    Sketcher.Constraint("Symmetric", 1, 3, 5, 3, -1, 1),
    Sketcher.Constraint("Vertical", 3, 3, 5, 3),
    Sketcher.Constraint("Vertical", 1, 3, 7, 3),
    Sketcher.Constraint("Radius", 1, Q("0.5 in")),
    Sketcher.Constraint("DistanceX", 0, 2, 0, 1, Q("2 in")),
    Sketcher.Constraint("DistanceY", 3, 3, 5, 3, Q("10.75 in")),
])
pocket4 = body.newObject("PartDesign::Pocket", "Pocket003")
pocket4.Profile = sketch5
pocket4.Type = "ThroughAll"
pocket4.Reversed = True

doc.recompute()
